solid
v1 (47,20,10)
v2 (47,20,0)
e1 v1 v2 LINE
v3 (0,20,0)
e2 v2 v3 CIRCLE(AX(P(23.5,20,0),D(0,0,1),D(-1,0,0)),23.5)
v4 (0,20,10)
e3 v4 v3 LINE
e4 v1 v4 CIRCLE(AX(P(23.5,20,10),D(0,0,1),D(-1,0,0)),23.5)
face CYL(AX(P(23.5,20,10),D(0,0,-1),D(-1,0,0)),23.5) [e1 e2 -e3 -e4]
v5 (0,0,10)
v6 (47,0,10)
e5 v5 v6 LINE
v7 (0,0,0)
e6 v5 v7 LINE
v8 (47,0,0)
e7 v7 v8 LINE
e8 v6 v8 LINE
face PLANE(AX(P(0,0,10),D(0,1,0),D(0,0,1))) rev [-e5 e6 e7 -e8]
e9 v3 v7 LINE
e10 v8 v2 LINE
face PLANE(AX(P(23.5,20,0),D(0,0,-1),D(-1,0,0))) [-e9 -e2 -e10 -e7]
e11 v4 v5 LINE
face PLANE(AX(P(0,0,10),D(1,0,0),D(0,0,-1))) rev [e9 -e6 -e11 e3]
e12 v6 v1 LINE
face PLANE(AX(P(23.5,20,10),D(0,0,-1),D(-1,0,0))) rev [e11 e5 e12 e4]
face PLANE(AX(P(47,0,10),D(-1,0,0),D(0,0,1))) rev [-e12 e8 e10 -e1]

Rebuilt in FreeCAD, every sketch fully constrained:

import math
import FreeCAD as App
import Part
import Sketcher
from FreeCAD import Vector
Q = App.Units.Quantity

doc = App.newDocument("Part")
body = doc.addObject("PartDesign::Body", "Body")

# Sketch on XY plane
sketch1 = body.newObject("Sketcher::SketchObject", "Sketch")
sketch1.AttachmentSupport = (doc.getObject("XY_Plane"), [""])
sketch1.MapMode = "FlatFace"
sketch1.addGeometry(Part.LineSegment(Vector(0, 0, 0), Vector(47, 0, 0)), False)
sketch1.addGeometry(Part.LineSegment(Vector(47, 0, 0), Vector(47, 20, 0)), False)
sketch1.addGeometry(Part.ArcOfCircle(Part.Circle(Vector(23.5, 20, 0), Vector(0, 0, 1), 23.5), math.radians(0), math.radians(180)), False)
sketch1.addGeometry(Part.LineSegment(Vector(0, 20, 0), Vector(0, 0, 0)), False)
sketch1.addConstraint(Sketcher.Constraint("Coincident", 0, 2, 1, 1))
sketch1.addConstraint(Sketcher.Constraint("Tangent", 1, 2, 2, 1))
sketch1.addConstraint(Sketcher.Constraint("Tangent", 2, 2, 3, 1))
sketch1.addConstraint(Sketcher.Constraint("Coincident", 3, 2, 0, 1))
sketch1.addConstraint(Sketcher.Constraint("Horizontal", 0))
sketch1.addConstraint(Sketcher.Constraint("Vertical", 1))
sketch1.addConstraint(Sketcher.Constraint("Vertical", 3))
sketch1.addConstraint(Sketcher.Constraint("Coincident", 3, 2, -1, 1))
sketch1.addConstraint(Sketcher.Constraint("Radius", 2, Q("23.5 mm")))
sketch1.addConstraint(Sketcher.Constraint("DistanceY", 1, 1, 1, 2, Q("20 mm")))
pad1 = body.newObject("PartDesign::Pad", "Pad")
pad1.Profile = sketch1
pad1.Length = 10

doc.recompute()
